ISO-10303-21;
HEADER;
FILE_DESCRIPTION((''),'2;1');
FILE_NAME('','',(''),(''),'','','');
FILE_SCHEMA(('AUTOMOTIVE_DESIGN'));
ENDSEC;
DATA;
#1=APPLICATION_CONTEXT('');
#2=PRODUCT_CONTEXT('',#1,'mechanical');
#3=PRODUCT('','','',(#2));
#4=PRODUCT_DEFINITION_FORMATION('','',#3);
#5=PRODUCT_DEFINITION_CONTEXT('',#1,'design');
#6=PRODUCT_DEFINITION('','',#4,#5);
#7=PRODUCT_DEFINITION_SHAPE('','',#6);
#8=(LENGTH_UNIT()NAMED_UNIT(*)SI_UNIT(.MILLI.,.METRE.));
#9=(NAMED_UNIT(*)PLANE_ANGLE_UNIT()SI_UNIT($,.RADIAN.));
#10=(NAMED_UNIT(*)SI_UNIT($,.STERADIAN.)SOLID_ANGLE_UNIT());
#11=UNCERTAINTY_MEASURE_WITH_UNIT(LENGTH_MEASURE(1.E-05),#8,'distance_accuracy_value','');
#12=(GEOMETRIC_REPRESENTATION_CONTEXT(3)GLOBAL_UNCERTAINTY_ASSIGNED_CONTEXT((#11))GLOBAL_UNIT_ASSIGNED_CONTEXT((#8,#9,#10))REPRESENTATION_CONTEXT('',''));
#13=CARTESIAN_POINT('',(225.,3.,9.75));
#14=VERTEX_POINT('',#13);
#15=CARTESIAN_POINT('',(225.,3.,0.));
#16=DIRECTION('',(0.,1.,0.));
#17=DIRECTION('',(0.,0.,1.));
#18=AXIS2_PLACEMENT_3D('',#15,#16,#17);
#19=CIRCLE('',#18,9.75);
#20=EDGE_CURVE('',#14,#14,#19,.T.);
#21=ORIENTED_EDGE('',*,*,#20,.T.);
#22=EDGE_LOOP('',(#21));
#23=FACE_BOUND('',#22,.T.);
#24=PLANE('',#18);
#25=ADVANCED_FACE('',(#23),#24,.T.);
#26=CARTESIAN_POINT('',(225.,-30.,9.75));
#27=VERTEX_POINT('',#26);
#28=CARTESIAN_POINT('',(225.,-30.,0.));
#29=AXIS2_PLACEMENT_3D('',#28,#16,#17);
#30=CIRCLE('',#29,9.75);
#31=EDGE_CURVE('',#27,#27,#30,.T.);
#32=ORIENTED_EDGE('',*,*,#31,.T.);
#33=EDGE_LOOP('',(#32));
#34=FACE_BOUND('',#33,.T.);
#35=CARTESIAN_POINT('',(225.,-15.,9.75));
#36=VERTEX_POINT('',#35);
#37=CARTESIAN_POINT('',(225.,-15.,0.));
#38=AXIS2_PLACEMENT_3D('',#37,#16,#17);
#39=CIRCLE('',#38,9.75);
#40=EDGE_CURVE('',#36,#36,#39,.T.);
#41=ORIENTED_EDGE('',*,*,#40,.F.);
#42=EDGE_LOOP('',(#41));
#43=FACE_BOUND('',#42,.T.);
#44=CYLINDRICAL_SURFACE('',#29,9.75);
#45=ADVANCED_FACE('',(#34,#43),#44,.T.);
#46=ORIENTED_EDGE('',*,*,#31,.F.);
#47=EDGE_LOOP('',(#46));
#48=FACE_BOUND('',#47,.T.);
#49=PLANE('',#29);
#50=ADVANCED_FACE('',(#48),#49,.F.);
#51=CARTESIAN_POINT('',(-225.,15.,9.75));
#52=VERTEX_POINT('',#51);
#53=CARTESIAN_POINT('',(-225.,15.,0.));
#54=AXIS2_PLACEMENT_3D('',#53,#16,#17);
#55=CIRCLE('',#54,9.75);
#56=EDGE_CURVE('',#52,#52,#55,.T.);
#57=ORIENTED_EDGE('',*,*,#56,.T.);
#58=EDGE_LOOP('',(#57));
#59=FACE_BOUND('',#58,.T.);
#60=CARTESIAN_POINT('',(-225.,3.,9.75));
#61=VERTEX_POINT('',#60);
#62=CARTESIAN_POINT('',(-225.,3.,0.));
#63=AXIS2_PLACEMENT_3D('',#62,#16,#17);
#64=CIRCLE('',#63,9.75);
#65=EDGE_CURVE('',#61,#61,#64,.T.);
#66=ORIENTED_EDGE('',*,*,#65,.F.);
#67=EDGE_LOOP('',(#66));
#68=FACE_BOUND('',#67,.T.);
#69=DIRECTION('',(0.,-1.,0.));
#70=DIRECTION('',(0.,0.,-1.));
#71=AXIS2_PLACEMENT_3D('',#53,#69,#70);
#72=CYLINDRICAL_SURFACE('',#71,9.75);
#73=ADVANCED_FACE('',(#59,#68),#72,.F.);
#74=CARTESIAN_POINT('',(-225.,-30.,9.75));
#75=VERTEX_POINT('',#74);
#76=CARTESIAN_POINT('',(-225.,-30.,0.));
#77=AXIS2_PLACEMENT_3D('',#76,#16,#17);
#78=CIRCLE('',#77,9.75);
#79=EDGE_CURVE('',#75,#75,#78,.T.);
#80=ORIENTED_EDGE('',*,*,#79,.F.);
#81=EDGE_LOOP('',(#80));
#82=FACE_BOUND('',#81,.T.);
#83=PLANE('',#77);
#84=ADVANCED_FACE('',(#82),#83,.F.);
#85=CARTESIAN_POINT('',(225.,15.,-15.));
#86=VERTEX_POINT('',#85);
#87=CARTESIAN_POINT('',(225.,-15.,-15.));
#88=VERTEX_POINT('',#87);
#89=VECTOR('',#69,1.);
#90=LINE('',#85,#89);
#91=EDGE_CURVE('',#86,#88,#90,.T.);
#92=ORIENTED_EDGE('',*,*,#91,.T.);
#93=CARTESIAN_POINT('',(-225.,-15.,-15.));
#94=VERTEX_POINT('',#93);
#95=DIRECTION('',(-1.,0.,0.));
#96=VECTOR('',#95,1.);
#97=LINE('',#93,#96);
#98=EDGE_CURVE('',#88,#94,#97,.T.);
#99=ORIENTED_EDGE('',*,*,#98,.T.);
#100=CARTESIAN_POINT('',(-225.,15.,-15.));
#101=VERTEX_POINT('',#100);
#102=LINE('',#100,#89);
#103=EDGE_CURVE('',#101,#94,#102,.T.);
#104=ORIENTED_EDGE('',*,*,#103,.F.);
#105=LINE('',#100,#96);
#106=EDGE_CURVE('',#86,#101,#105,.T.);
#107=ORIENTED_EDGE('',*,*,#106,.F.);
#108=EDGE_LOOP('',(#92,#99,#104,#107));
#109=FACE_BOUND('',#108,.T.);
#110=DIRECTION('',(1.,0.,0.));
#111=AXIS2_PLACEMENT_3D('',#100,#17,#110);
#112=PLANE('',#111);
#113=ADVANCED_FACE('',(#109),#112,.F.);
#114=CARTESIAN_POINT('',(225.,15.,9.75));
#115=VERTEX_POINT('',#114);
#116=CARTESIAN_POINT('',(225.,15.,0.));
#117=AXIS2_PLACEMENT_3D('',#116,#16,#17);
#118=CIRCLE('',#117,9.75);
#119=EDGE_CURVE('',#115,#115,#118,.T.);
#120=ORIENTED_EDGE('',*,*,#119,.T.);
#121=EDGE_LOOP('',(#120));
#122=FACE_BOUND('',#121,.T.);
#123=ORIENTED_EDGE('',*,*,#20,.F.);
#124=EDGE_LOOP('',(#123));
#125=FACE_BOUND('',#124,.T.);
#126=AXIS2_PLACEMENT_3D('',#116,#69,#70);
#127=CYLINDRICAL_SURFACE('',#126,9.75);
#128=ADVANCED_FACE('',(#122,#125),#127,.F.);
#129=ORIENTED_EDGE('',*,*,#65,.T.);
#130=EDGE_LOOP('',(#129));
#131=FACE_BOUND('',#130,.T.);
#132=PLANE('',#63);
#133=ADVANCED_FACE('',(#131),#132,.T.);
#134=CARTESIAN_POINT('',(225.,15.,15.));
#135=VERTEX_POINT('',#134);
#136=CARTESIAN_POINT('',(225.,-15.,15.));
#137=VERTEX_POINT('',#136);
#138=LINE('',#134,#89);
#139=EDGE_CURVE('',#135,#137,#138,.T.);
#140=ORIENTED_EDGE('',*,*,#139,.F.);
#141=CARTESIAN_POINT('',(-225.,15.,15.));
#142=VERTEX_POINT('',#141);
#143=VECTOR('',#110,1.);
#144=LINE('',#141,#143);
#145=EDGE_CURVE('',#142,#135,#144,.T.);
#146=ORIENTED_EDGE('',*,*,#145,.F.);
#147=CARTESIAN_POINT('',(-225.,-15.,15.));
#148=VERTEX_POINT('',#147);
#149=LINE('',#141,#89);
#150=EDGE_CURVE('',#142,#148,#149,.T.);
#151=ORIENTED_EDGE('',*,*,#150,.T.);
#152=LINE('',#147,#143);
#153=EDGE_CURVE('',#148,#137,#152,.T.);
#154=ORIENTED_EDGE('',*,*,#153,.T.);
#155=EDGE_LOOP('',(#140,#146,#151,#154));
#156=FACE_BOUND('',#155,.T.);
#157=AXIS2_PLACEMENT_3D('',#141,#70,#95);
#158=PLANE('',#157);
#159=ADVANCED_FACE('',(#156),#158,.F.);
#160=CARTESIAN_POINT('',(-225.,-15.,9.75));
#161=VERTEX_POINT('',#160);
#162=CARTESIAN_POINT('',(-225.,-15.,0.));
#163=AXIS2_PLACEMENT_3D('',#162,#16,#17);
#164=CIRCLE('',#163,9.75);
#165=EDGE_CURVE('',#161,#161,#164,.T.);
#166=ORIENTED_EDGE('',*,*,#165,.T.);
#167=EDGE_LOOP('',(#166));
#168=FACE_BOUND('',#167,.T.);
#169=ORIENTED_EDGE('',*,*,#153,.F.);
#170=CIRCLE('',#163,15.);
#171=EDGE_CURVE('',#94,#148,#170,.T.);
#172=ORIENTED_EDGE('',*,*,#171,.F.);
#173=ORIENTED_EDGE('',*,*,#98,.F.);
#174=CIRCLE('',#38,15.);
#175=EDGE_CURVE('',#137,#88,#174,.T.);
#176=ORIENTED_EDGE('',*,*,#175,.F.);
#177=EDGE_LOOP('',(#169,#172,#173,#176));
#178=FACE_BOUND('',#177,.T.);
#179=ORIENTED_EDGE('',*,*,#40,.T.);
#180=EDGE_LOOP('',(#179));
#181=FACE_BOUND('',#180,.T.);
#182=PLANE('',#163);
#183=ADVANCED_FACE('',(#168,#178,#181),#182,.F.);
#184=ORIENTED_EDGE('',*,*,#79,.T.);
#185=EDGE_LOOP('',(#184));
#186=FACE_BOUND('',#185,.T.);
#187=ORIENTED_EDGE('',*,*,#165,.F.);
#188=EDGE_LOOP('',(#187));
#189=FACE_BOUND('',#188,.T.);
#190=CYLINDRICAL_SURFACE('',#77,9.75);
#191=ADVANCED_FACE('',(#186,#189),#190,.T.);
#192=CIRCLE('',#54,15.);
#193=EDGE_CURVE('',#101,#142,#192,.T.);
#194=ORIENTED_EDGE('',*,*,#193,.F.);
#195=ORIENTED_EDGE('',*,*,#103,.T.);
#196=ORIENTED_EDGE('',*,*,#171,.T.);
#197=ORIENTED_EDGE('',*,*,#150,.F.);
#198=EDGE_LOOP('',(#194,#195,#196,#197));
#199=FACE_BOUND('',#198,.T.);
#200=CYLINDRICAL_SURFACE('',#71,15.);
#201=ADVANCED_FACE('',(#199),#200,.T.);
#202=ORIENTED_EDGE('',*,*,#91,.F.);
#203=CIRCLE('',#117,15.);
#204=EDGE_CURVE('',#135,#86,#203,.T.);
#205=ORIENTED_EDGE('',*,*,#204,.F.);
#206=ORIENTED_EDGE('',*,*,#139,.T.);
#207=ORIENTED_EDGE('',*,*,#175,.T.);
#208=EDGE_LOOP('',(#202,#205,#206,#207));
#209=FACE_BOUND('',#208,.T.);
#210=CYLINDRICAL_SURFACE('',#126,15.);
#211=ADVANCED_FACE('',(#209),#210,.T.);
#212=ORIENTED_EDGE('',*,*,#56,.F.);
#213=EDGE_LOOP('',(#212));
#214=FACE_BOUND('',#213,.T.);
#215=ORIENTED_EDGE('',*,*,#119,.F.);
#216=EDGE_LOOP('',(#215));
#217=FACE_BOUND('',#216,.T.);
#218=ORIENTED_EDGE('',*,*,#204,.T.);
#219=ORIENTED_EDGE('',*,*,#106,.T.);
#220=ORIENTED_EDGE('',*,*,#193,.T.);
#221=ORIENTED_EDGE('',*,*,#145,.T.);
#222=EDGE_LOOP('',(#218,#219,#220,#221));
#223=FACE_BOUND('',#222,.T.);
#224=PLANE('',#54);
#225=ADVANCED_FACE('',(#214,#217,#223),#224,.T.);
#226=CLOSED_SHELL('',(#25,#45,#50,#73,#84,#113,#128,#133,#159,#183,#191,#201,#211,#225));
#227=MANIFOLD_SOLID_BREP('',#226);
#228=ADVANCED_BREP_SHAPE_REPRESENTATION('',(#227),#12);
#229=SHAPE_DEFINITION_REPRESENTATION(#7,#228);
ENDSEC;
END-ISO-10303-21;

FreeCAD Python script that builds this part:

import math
import FreeCAD as App
import Part
import Sketcher
Q = App.Units.Quantity

doc = App.newDocument("Part")
body = doc.addObject("PartDesign::Body", "Body")

# Sketch on XZ plane
sketch1 = body.newObject("Sketcher::SketchObject", "Sketch")
sketch1.AttachmentSupport = (doc.getObject("XZ_Plane"), [""])
sketch1.MapMode = "FlatFace"
sketch1.addGeometry([
    Part.LineSegment(App.Vector(225, -15, 0), App.Vector(-225, -15, 0)),
    Part.ArcOfCircle(Part.Circle(App.Vector(-225, 0, 0), App.Vector(0, 0, 1), 15), math.radians(90), math.radians(270)),
    Part.LineSegment(App.Vector(-225, 15, 0), App.Vector(225, 15, 0)),
    Part.ArcOfCircle(Part.Circle(App.Vector(225, 0, 0), App.Vector(0, 0, 1), 15), math.radians(-90), math.radians(90)),
], False)
sketch1.addConstraint([
    Sketcher.Constraint("Tangent", 0, 2, 1, 2),
    Sketcher.Constraint("Tangent", 1, 1, 2, 1),
    Sketcher.Constraint("Tangent", 2, 2, 3, 2),
    Sketcher.Constraint("Tangent", 3, 1, 0, 1),
    Sketcher.Constraint("Horizontal", 0),
    Sketcher.Constraint("Horizontal", 2),
    Sketcher.Constraint("Symmetric", 1, 3, 3, 3, -1, 1),
    Sketcher.Constraint("Radius", 1, Q("15 mm")),
    Sketcher.Constraint("DistanceX", 0, 2, 0, 1, Q("450 mm")),
])
pad1 = body.newObject("PartDesign::Pad", "Pad")
pad1.Profile = sketch1
pad1.Length = 30
pad1.Midplane = True

# Sketch on XZ plane
sketch2 = body.newObject("Sketcher::SketchObject", "Sketch001")
sketch2.AttachmentSupport = (doc.getObject("XZ_Plane"), [""])
sketch2.MapMode = "FlatFace"
sketch2.addGeometry([
    Part.Circle(App.Vector(-225, 0, 0), App.Vector(0, 0, 1), 10),
    Part.Circle(App.Vector(225, 0, 0), App.Vector(0, 0, 1), 10),
], False)
sketch2.addConstraint([
    Sketcher.Constraint("Equal", 0, 1),
    Sketcher.Constraint("Symmetric", 0, 3, 1, 3, -1, 1),
    Sketcher.Constraint("PointOnObject", 0, 3, -1),
    Sketcher.Constraint("Diameter", 0, Q("19.5 mm")),
    Sketcher.Constraint("DistanceX", 0, 3, -1, 1, Q("225 mm")),
])
pocket1 = body.newObject("PartDesign::Pocket", "Pocket")
pocket1.Profile = sketch2
pocket1.Type = "ThroughAll"

# Sketch on XZ plane
sketch3 = body.newObject("Sketcher::SketchObject", "Sketch002")
sketch3.AttachmentSupport = (doc.getObject("XZ_Plane"), [""])
sketch3.MapMode = "FlatFace"
sketch3.AttachmentOffset = App.Placement(App.Vector(0, 0, 30), App.Rotation())
sketch3.addGeometry([
    Part.Circle(App.Vector(-225, 0, 0), App.Vector(0, 0, 1), 10),
    Part.Circle(App.Vector(225, 0, 0), App.Vector(0, 0, 1), 10),
], False)
sketch3.addConstraint([
    Sketcher.Constraint("Equal", 0, 1),
    Sketcher.Constraint("Symmetric", 0, 3, 1, 3, -1, 1),
    Sketcher.Constraint("PointOnObject", 0, 3, -1),
    Sketcher.Constraint("Diameter", 0, Q("19.5 mm")),
    Sketcher.Constraint("DistanceX", 0, 3, -1, 1, Q("225 mm")),
])
pad2 = body.newObject("PartDesign::Pad", "Pad001")
pad2.Profile = sketch3
pad2.Length = 30
pad2.Reversed = True

# Sketch on XZ plane
sketch4 = body.newObject("Sketcher::SketchObject", "Sketch003")
sketch4.AttachmentSupport = (doc.getObject("XZ_Plane"), [""])
sketch4.MapMode = "FlatFace"
sketch4.addGeometry([
    Part.Circle(App.Vector(-225, 0, 0), App.Vector(0, 0, 1), 10),
    Part.Circle(App.Vector(225, 0, 0), App.Vector(0, 0, 1), 10),
], False)
sketch4.addConstraint([
    Sketcher.Constraint("Equal", 0, 1),
    Sketcher.Constraint("Symmetric", 0, 3, 1, 3, -1, 1),
    Sketcher.Constraint("PointOnObject", 0, 3, -1),
    Sketcher.Constraint("Diameter", 0, Q("19.5 mm")),
    Sketcher.Constraint("DistanceX", 0, 3, -1, 1, Q("225 mm")),
])
pad3 = body.newObject("PartDesign::Pad", "Pad002")
pad3.Profile = sketch4
pad3.Length = 3
pad3.Reversed = True

doc.recompute()
